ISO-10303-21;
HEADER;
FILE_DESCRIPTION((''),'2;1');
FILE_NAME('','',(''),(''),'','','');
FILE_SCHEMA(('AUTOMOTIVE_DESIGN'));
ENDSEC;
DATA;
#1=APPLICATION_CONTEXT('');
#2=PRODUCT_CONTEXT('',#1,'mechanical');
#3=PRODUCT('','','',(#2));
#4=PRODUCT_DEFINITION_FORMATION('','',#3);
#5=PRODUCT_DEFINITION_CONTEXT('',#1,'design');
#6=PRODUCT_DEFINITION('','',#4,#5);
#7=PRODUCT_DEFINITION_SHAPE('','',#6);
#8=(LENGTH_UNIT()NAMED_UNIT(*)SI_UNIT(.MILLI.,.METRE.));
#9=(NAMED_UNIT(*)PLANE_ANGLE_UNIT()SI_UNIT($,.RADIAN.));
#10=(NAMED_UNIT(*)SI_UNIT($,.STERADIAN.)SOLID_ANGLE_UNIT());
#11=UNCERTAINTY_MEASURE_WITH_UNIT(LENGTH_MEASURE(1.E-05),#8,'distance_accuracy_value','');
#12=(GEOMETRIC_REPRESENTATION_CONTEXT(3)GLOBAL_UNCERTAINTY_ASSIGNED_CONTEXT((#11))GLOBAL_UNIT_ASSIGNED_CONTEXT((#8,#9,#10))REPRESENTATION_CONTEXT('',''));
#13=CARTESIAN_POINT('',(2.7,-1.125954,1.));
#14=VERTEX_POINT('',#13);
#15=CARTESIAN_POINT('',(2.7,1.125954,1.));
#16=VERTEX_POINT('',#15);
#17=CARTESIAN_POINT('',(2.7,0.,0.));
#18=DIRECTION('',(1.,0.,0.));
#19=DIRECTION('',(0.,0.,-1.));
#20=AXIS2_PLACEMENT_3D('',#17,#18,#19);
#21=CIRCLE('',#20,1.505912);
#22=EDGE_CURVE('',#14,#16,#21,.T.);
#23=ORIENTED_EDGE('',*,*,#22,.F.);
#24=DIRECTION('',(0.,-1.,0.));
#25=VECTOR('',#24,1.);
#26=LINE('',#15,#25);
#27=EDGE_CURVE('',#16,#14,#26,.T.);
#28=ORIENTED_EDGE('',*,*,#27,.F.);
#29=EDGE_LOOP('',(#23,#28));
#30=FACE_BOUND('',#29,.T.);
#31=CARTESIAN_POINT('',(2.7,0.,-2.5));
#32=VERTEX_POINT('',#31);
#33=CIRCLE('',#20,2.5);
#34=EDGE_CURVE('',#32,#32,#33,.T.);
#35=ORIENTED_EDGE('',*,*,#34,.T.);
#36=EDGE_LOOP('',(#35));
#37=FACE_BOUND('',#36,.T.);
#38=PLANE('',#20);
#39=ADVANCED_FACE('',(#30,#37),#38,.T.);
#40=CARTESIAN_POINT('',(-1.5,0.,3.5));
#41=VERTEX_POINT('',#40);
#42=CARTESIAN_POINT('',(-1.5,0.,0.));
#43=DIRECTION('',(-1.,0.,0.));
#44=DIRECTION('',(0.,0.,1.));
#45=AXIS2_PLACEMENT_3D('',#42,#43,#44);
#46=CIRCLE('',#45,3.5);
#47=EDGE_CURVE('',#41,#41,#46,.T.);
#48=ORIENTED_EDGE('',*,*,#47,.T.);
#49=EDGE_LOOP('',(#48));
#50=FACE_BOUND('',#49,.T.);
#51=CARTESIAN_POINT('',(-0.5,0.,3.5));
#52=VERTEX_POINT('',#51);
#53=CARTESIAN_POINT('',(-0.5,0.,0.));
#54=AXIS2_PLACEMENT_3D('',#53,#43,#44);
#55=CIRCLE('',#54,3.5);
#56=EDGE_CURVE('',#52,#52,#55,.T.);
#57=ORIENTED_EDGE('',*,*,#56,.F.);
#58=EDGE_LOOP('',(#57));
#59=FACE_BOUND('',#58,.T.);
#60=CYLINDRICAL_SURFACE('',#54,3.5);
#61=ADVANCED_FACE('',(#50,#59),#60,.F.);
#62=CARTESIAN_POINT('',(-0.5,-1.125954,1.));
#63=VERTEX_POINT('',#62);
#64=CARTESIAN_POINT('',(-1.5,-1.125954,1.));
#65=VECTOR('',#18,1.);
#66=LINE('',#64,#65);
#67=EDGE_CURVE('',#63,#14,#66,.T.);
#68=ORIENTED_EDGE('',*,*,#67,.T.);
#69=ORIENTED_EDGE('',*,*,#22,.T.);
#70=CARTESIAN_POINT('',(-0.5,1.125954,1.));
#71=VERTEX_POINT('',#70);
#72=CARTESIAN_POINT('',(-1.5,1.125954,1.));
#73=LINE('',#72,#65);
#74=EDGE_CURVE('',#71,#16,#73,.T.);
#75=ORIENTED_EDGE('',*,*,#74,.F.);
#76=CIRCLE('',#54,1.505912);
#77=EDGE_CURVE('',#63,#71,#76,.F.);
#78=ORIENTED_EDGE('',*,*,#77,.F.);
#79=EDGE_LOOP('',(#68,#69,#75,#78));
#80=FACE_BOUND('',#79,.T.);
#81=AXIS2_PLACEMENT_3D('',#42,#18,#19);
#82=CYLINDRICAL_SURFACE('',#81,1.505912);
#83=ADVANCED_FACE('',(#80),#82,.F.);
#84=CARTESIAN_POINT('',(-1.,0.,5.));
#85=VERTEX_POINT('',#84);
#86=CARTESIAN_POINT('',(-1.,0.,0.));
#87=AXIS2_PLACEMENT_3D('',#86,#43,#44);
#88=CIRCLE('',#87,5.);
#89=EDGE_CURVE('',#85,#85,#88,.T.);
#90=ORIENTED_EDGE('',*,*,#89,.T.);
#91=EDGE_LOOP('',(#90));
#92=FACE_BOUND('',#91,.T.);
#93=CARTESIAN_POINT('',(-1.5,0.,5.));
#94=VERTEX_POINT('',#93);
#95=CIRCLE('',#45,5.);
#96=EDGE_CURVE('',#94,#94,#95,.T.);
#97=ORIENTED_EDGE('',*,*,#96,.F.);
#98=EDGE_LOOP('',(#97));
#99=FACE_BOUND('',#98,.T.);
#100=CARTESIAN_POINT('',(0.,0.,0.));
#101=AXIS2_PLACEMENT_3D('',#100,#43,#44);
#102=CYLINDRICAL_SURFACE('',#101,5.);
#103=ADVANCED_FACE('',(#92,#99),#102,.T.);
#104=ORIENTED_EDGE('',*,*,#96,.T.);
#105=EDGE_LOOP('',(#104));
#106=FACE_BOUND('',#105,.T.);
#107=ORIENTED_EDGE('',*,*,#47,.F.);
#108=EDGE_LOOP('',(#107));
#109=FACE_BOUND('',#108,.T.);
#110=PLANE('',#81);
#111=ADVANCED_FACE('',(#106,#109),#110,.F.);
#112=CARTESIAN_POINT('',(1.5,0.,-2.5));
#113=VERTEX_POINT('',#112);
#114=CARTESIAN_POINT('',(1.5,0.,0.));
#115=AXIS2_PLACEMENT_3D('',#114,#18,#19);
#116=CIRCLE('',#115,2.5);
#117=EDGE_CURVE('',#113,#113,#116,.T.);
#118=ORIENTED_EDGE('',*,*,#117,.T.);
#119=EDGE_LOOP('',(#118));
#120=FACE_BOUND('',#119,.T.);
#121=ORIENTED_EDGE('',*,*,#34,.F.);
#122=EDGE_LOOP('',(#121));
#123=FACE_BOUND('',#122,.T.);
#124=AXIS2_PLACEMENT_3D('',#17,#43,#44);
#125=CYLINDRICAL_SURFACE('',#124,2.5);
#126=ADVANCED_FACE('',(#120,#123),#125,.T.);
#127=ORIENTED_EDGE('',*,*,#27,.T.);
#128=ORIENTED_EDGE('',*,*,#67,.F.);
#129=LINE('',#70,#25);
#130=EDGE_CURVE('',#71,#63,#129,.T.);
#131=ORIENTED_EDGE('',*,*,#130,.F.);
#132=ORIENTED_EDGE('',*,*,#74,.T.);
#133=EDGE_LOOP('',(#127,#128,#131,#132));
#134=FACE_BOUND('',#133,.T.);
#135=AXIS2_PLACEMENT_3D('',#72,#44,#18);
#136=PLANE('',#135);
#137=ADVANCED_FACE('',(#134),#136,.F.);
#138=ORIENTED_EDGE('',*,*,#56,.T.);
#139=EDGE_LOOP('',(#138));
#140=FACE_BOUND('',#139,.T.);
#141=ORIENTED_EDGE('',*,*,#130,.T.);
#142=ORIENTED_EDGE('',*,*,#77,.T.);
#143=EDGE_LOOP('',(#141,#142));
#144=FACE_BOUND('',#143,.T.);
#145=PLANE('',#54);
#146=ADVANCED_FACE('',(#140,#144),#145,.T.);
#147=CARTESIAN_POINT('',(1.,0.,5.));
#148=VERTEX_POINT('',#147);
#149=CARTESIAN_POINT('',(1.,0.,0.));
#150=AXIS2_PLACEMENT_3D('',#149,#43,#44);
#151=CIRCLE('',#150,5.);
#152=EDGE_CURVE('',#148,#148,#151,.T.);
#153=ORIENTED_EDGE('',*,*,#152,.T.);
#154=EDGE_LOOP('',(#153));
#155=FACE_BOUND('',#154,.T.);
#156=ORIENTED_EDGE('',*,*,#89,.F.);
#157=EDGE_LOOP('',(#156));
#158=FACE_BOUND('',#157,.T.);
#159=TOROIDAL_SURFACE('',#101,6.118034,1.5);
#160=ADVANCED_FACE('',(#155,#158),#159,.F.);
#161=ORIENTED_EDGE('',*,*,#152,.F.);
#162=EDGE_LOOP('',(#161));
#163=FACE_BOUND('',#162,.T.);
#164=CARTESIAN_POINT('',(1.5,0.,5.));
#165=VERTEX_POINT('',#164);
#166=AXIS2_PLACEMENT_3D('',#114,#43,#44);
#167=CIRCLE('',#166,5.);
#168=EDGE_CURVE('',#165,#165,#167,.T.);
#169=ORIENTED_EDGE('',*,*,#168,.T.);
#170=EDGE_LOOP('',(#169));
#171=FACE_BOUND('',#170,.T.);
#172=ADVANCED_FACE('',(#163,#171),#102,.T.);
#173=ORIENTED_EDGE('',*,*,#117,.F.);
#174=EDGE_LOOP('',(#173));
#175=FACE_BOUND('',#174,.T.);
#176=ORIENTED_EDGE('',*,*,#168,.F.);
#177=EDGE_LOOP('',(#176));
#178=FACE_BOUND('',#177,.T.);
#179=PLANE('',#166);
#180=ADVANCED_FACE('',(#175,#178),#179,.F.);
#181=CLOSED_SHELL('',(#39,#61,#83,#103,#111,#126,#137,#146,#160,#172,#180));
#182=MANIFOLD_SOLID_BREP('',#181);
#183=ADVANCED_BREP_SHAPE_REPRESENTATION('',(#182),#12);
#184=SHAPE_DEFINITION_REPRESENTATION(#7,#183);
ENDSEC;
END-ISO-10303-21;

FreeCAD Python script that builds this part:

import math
import FreeCAD as App
import Part
import Sketcher

V = App.Vector

doc = App.newDocument("Part")
body = doc.addObject("PartDesign::Body", "Body")

# Sketch on XY plane
sketch1 = doc.addObject("Sketcher::SketchObject", "Sketch")
body.addObject(sketch1)
sketch1.AttachmentSupport = (doc.XY_Plane, [""])
sketch1.MapMode = "FlatFace"
sketch1.addGeometry([
    Part.LineSegment(V(-1.5, 0, 0), V(1.5, 0, 0)),  # 0
    Part.LineSegment(V(1.5, 0, 0), V(1.5, 5, 0)),  # 1
    Part.LineSegment(V(1.5, 5, 0), V(1, 5, 0)),  # 2
    Part.ArcOfCircle(Part.Circle(V(0, 6.1, 0), V(0, 0, 1), 1.5), math.radians(-132), math.radians(-48)),  # 3
    Part.LineSegment(V(-1, 5, 0), V(-1.5, 5, 0)),  # 4
    Part.LineSegment(V(-1.5, 5, 0), V(-1.5, 0, 0)),  # 5
], False)
sketch1.addConstraint([
    Sketcher.Constraint("Coincident", 0, 2, 1, 1),
    Sketcher.Constraint("Coincident", 1, 2, 2, 1),
    Sketcher.Constraint("Coincident", 2, 2, 3, 2),
    Sketcher.Constraint("Coincident", 3, 1, 4, 1),
    Sketcher.Constraint("Coincident", 4, 2, 5, 1),
    Sketcher.Constraint("Coincident", 5, 2, 0, 1),
    Sketcher.Constraint("Horizontal", 0),
    Sketcher.Constraint("Vertical", 1),
    Sketcher.Constraint("Horizontal", 2),
    Sketcher.Constraint("Horizontal", 4),
    Sketcher.Constraint("Vertical", 5),
    Sketcher.Constraint("Symmetric", 0, 2, 5, 2, -1, 1),
    Sketcher.Constraint("Symmetric", 2, 2, 3, 1, -2),
    Sketcher.Constraint("Radius", 3, 1.5),
    Sketcher.Constraint("DistanceX", 0, 1, 0, 2, 3.0),
    Sketcher.Constraint("DistanceY", 1, 1, 1, 2, 5.0),
    Sketcher.Constraint("DistanceX", 2, 2, 2, 1, 0.5),
])
revolution = doc.addObject("PartDesign::Revolution", "Revolution")
body.addObject(revolution)
revolution.Profile = sketch1
revolution.ReferenceAxis = (sketch1, ["H_Axis"])
revolution.Angle = 360

# Sketch on YZ plane
sketch2 = doc.addObject("Sketcher::SketchObject", "Sketch001")
body.addObject(sketch2)
sketch2.AttachmentSupport = (doc.YZ_Plane, [""])
sketch2.MapMode = "FlatFace"
sketch2.AttachmentOffset = App.Placement(V(0, 0, 1.5), App.Rotation())
sketch2.addGeometry(Part.Circle(V(0, 0, 0), V(0, 0, 1), 2.5), False)
sketch2.addConstraint([
    Sketcher.Constraint("Coincident", 0, 3, -1, 1),
    Sketcher.Constraint("Diameter", 0, 5.0),
])
pad1 = doc.addObject("PartDesign::Pad", "Pad")
body.addObject(pad1)
pad1.Profile = sketch2
pad1.Length = 1.2

# Sketch on YZ plane
sketch3 = doc.addObject("Sketcher::SketchObject", "Sketch002")
body.addObject(sketch3)
sketch3.AttachmentSupport = (doc.YZ_Plane, [""])
sketch3.MapMode = "FlatFace"
sketch3.AttachmentOffset = App.Placement(V(0, 0, 1.5), App.Rotation())
sketch3.addGeometry([
    Part.LineSegment(V(1.1, 1, 0), V(-1.1, 1, 0)),
    Part.ArcOfCircle(Part.Circle(V(0, 0, 0), V(0, 0, 1), 1.5), math.radians(138), math.radians(402)),
], False)
sketch3.addConstraint([
    Sketcher.Constraint("Coincident", 0, 1, 1, 2),
    Sketcher.Constraint("Coincident", 1, 1, 0, 2),
    Sketcher.Constraint("Horizontal", 0),
    Sketcher.Constraint("Coincident", 1, 3, -1, 1),
    Sketcher.Constraint("DistanceY", -1, 1, 0, 1, 1.0),
    Sketcher.Constraint("Radius", 1, 1.505912),
])
pocket1 = doc.addObject("PartDesign::Pocket", "Pocket")
body.addObject(pocket1)
pocket1.Profile = sketch3
pocket1.Type = "ThroughAll"
pocket1.Midplane = True

# Sketch on YZ plane
sketch4 = doc.addObject("Sketcher::SketchObject", "Sketch003")
body.addObject(sketch4)
sketch4.AttachmentSupport = (doc.YZ_Plane, [""])
sketch4.MapMode = "FlatFace"
sketch4.AttachmentOffset = App.Placement(V(0, 0, -1.5), App.Rotation())
sketch4.addGeometry(Part.Circle(V(0, 0, 0), V(0, 0, 1), 3.5), False)
sketch4.addConstraint([
    Sketcher.Constraint("Coincident", 0, 3, -1, 1),
    Sketcher.Constraint("Diameter", 0, 7.0),
])
pocket2 = doc.addObject("PartDesign::Pocket", "Pocket001")
body.addObject(pocket2)
pocket2.Profile = sketch4
pocket2.Length = 1
pocket2.Reversed = True

doc.recompute()
